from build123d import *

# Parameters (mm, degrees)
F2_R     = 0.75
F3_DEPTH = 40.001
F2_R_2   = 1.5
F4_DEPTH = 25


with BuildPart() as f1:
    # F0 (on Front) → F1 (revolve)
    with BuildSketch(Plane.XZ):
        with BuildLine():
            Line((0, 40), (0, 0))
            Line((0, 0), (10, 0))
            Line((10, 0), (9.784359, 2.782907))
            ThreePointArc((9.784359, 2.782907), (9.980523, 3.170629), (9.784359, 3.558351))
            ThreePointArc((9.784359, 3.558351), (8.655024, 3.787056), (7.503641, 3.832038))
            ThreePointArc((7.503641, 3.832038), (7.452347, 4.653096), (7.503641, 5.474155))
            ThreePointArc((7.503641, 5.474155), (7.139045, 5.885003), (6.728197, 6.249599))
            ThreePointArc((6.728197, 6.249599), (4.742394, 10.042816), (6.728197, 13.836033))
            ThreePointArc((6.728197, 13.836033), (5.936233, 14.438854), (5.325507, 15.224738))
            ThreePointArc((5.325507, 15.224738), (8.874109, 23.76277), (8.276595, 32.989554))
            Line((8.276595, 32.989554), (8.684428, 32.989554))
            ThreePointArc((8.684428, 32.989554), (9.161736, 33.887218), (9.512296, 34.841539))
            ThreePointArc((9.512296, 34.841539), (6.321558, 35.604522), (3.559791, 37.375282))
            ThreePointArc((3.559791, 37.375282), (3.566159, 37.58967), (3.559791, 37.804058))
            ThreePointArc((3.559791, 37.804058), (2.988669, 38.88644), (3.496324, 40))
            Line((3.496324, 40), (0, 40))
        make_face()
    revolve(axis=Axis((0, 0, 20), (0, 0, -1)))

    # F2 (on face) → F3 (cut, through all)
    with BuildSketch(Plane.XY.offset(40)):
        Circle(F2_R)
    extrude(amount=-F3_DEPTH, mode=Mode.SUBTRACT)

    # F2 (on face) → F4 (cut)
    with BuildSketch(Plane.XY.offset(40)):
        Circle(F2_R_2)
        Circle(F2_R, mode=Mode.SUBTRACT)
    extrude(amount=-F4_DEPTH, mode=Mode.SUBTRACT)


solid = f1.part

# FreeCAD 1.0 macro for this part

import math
import FreeCAD as App
import Part
import Sketcher
Q = App.Units.Quantity

doc = App.newDocument("Part")
body = doc.addObject("PartDesign::Body", "Body")

# Sketch on XZ plane
sketch1 = body.newObject("Sketcher::SketchObject", "Sketch")
sketch1.AttachmentSupport = (doc.getObject("XZ_Plane"), [""])
sketch1.MapMode = "FlatFace"
sketch1.addGeometry([
    Part.LineSegment(App.Vector(0, 40, 0), App.Vector(0, 0, 0)),  # 0
    Part.LineSegment(App.Vector(0, 0, 0), App.Vector(10, 0, 0)),  # 1
    Part.LineSegment(App.Vector(10, 0, 0), App.Vector(9.784359, 2.782907, 0)),  # 2
    Part.ArcOfCircle(Part.Circle(App.Vector(9.499271, 3.170629, 0), App.Vector(0, 0, 1), 0.481252), math.radians(-53.67333), math.radians(53.67333)),  # 3
    Part.ArcOfCircle(Part.Circle(App.Vector(7.800132, -3.337018, 0), App.Vector(0, 0, 1), 7.175184), math.radians(73.946177), math.radians(92.368234)),  # 4
    Part.ArcOfCircle(Part.Circle(App.Vector(14.049299, 4.653097, 0), App.Vector(0, 0, 1), 6.596952), math.radians(172.850411), math.radians(187.149589)),  # 5
    Part.ArcOfCircle(Part.Circle(App.Vector(3.87728, 2.623238, 0), App.Vector(0, 0, 1), 4.612832), math.radians(38.17318), math.radians(51.82682)),  # 6
    Part.ArcOfCircle(Part.Circle(App.Vector(9.358136, 10.042816, 0), App.Vector(0, 0, 1), 4.615742), math.radians(124.734607), math.radians(235.265393)),  # 7
    Part.ArcOfCircle(Part.Circle(App.Vector(8.641722, 17.171589, 0), App.Vector(0, 0, 1), 3.845453), math.radians(-149.584079), math.radians(-119.841817)),  # 8
    Part.ArcOfCircle(Part.Circle(App.Vector(-11.191596, 27.096081, 0), App.Vector(0, 0, 1), 20.340686), math.radians(-35.705949), math.radians(16.84228)),  # 9
    Part.LineSegment(App.Vector(8.276595, 32.989554, 0), App.Vector(8.684428, 32.989554, 0)),  # 10
    Part.ArcOfCircle(Part.Circle(App.Vector(2.364926, 36.925504, 0), App.Vector(0, 0, 1), 7.444985), math.radians(-31.915723), math.radians(-16.255147)),  # 11
    Part.ArcOfCircle(Part.Circle(App.Vector(10.170232, 44.646185, 0), App.Vector(0, 0, 1), 9.826697), math.radians(-132.275972), math.radians(-93.839052)),  # 12
    Part.ArcOfCircle(Part.Circle(App.Vector(-0.045867, 37.58967, 0), App.Vector(0, 0, 1), 3.612026), math.radians(-3.40273), math.radians(3.40273)),  # 13
    Part.ArcOfCircle(Part.Circle(App.Vector(4.37587, 38.926532, 0), App.Vector(0, 0, 1), 1.38778), math.radians(129.329481), math.radians(233.981517)),  # 14
    Part.LineSegment(App.Vector(3.496324, 40, 0), App.Vector(0, 40, 0)),  # 15
], False)
sketch1.addConstraint([
    Sketcher.Constraint("Coincident", 0, 2, 1, 1),
    Sketcher.Constraint("Coincident", 1, 2, 2, 1),
    Sketcher.Constraint("Coincident", 2, 2, 3, 1),
    Sketcher.Constraint("Coincident", 3, 2, 4, 1),
    Sketcher.Constraint("Coincident", 4, 2, 5, 2),
    Sketcher.Constraint("Coincident", 5, 1, 6, 1),
    Sketcher.Constraint("Coincident", 6, 2, 7, 2),
    Sketcher.Constraint("Coincident", 7, 1, 8, 2),
    Sketcher.Constraint("Coincident", 8, 1, 9, 1),
    Sketcher.Constraint("Coincident", 9, 2, 10, 1),
    Sketcher.Constraint("Coincident", 10, 2, 11, 1),
    Sketcher.Constraint("Coincident", 11, 2, 12, 2),
    Sketcher.Constraint("Coincident", 12, 1, 13, 1),
    Sketcher.Constraint("Coincident", 13, 2, 14, 2),
    Sketcher.Constraint("Coincident", 14, 1, 15, 1),
    Sketcher.Constraint("Coincident", 15, 2, 0, 1),
    Sketcher.Constraint("Vertical", 0),
    Sketcher.Constraint("Horizontal", 1),
    Sketcher.Constraint("Horizontal", 10),
    Sketcher.Constraint("Horizontal", 15),
    Sketcher.Constraint("Coincident", 0, 2, -1, 1),
    Sketcher.Constraint("Vertical", 2, 2, 3, 2),
    Sketcher.Constraint("Vertical", 4, 2, 5, 1),
    Sketcher.Constraint("Vertical", 6, 2, 7, 1),
    Sketcher.Constraint("Vertical", 12, 1, 13, 2),
    Sketcher.Constraint("DistanceX", 1, 1, 1, 2, Q("10 mm")),
    Sketcher.Constraint("DistanceY", 0, 2, 0, 1, Q("40 mm")),
    Sketcher.Constraint("Radius", 14, Q("1.38778 mm")),
    Sketcher.Constraint("Radius", 3, Q("0.481252 mm")),
    Sketcher.Constraint("Radius", 4, Q("7.175184 mm")),
    Sketcher.Constraint("Radius", 5, Q("6.596952 mm")),
    Sketcher.Constraint("Radius", 6, Q("4.612832 mm")),
    Sketcher.Constraint("Radius", 7, Q("4.615742 mm")),
    Sketcher.Constraint("Radius", 8, Q("3.845453 mm")),
    Sketcher.Constraint("Radius", 9, Q("20.340686 mm")),
    Sketcher.Constraint("Radius", 11, Q("7.444985 mm")),
    Sketcher.Constraint("Radius", 12, Q("9.826697 mm")),
    Sketcher.Constraint("Radius", 13, Q("3.612026 mm")),
    Sketcher.Constraint("DistanceX", -1, 1, 5, 3, Q("14.049299 mm")),
    Sketcher.Constraint("DistanceY", -1, 1, 6, 2, Q("6.249599 mm")),
    Sketcher.Constraint("DistanceX", 13, 3, 12, 3, Q("10.2161 mm")),
    Sketcher.Constraint("DistanceY", 6, 3, 4, 2, Q("1.2088 mm")),
    Sketcher.Constraint("DistanceX", 11, 3, 10, 2, Q("6.319502 mm")),
    Sketcher.Constraint("DistanceX", 9, 2, 11, 2, Q("1.235701 mm")),
    Sketcher.Constraint("Distance", 2, Q("2.791249 mm")),
    Sketcher.Constraint("DistanceX", 10, 1, 10, 2, Q("0.407833 mm")),
    Sketcher.Constraint("DistanceX", 15, 2, 15, 1, Q("3.496324 mm")),
    Sketcher.Constraint("DistanceX", -1, 1, 3, 3, Q("9.499271 mm")),
    Sketcher.Constraint("DistanceY", -1, 1, 3, 3, Q("3.170629 mm")),
    Sketcher.Constraint("DistanceX", -1, 1, 4, 3, Q("7.800132 mm")),
    Sketcher.Constraint("DistanceX", -1, 1, 6, 3, Q("3.87728 mm")),
    Sketcher.Constraint("DistanceY", -1, 1, 8, 3, Q("17.171589 mm")),
    Sketcher.Constraint("DistanceY", -1, 1, 9, 3, Q("27.096081 mm")),
    Sketcher.Constraint("DistanceY", -1, 1, 13, 3, Q("37.58967 mm")),
    Sketcher.Constraint("DistanceX", -1, 1, 14, 3, Q("4.37587 mm")),
    Sketcher.Constraint("DistanceY", -1, 1, 11, 2, Q("34.841539 mm")),
    Sketcher.Constraint("DistanceX", -1, 1, 12, 1, Q("3.559791 mm")),
    Sketcher.Constraint("DistanceY", 5, 3, 7, 3, Q("5.389719 mm")),
])
revolution = body.newObject("PartDesign::Revolution", "Revolution")
revolution.Profile = sketch1
revolution.ReferenceAxis = (sketch1, ["V_Axis"])
revolution.Angle = 360

# Sketch on XY plane
sketch2 = body.newObject("Sketcher::SketchObject", "Sketch001")
sketch2.AttachmentSupport = (doc.getObject("XY_Plane"), [""])
sketch2.MapMode = "FlatFace"
sketch2.AttachmentOffset = App.Placement(App.Vector(0, 0, 40), App.Rotation())
sketch2.addGeometry(Part.Circle(App.Vector(0, 0, 0), App.Vector(0, 0, 1), 0.75), False)
sketch2.addConstraint([
    Sketcher.Constraint("Coincident", 0, 3, -1, 1),
    Sketcher.Constraint("Diameter", 0, Q("1.5 mm")),
])
pocket1 = body.newObject("PartDesign::Pocket", "Pocket")
pocket1.Profile = sketch2
pocket1.Type = "ThroughAll"

# Sketch on XY plane
sketch3 = body.newObject("Sketcher::SketchObject", "Sketch002")
sketch3.AttachmentSupport = (doc.getObject("XY_Plane"), [""])
sketch3.MapMode = "FlatFace"
sketch3.AttachmentOffset = App.Placement(App.Vector(0, 0, 40), App.Rotation())
sketch3.addGeometry([
    Part.Circle(App.Vector(0, 0, 0), App.Vector(0, 0, 1), 1.5),
    Part.Circle(App.Vector(0, 0, 0), App.Vector(0, 0, 1), 0.75),
], False)
sketch3.addConstraint([
    Sketcher.Constraint("Coincident", 0, 3, -1, 1),
    Sketcher.Constraint("Coincident", 1, 3, -1, 1),
    Sketcher.Constraint("Diameter", 0, Q("3 mm")),
    Sketcher.Constraint("Diameter", 1, Q("1.5 mm")),
])
pocket2 = body.newObject("PartDesign::Pocket", "Pocket001")
pocket2.Profile = sketch3
pocket2.Length = 25

doc.recompute()
